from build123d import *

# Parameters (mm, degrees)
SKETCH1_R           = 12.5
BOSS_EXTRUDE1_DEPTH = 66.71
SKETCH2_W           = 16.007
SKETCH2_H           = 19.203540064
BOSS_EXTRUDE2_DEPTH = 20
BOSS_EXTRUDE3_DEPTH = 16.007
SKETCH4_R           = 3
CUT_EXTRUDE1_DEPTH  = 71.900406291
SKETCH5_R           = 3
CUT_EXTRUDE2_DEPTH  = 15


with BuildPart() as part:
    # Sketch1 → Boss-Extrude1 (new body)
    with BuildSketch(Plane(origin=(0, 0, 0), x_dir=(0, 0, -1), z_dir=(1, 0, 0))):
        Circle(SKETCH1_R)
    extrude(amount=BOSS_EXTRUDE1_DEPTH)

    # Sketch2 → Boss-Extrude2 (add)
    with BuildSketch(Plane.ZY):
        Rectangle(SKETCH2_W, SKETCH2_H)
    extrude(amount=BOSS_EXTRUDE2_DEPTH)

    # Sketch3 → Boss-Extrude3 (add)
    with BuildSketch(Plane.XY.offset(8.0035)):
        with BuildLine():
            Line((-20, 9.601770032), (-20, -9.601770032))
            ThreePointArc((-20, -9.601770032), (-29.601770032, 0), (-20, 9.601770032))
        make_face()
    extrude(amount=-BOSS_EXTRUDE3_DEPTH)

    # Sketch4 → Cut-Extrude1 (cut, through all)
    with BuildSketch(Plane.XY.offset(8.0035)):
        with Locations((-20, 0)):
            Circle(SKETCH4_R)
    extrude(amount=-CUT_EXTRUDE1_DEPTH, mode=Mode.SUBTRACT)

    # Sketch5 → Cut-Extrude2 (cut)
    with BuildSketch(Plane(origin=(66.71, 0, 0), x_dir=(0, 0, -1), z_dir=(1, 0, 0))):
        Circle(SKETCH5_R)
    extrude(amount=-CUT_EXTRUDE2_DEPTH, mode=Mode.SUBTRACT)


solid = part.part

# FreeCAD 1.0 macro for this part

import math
import FreeCAD as App
import Part
import Sketcher


def add_polygon(sketch, points):
    """Adds a closed chain of lines whose ends are joined by coincident constraints."""
    first, n = sketch.GeometryCount, len(points)
    for a, b in zip(points, points[1:] + points[:1]):
        sketch.addGeometry(Part.LineSegment(App.Vector(*a, 0), App.Vector(*b, 0)), False)
    for i in range(n):
        sketch.addConstraint(Sketcher.Constraint("Coincident", first + i, 2, first + (i + 1) % n, 1))

doc = App.newDocument("Part")
body = doc.addObject("PartDesign::Body", "Body")

sketch1 = body.newObject("Sketcher::SketchObject", "Sketch")
sketch1.AttachmentSupport = (doc.getObject("YZ_Plane"), [""])
sketch1.MapMode = "FlatFace"
sketch1.addGeometry(Part.Circle(App.Vector(0, 0, 0), App.Vector(0, 0, 1), 12), False)
sketch1.addConstraint([
    Sketcher.Constraint("Coincident", 0, 3, -1, 1),
    Sketcher.Constraint("Diameter", 0, 25.0),
])
pad1 = body.newObject("PartDesign::Pad", "Pad")
pad1.Profile = sketch1
pad1.Length = 66.71

sketch2 = body.newObject("Sketcher::SketchObject", "Sketch001")
sketch2.AttachmentSupport = (doc.getObject("YZ_Plane"), [""])
sketch2.MapMode = "FlatFace"
add_polygon(sketch2, [(10, -8), (-10, -8), (-10, 8), (10, 8)])
sketch2.addConstraint([
    Sketcher.Constraint("Horizontal", 0),
    Sketcher.Constraint("Vertical", 1),
    Sketcher.Constraint("Horizontal", 2),
    Sketcher.Constraint("Vertical", 3),
    Sketcher.Constraint("Symmetric", 0, 2, 2, 2, -1, 1),
    Sketcher.Constraint("DistanceY", 1, 1, 1, 2, 16.007),
    Sketcher.Constraint("DistanceX", 0, 2, 0, 1, 19.20354),
])
pad2 = body.newObject("PartDesign::Pad", "Pad001")
pad2.Profile = sketch2
pad2.Length = 20
pad2.Reversed = True

sketch3 = body.newObject("Sketcher::SketchObject", "Sketch002")
sketch3.AttachmentSupport = (doc.getObject("XY_Plane"), [""])
sketch3.MapMode = "FlatFace"
sketch3.AttachmentOffset = App.Placement(App.Vector(0, 0, 8.0035), App.Rotation())
sketch3.addGeometry([
    Part.LineSegment(App.Vector(-20, -10, 0), App.Vector(-20, 10, 0)),
    Part.ArcOfCircle(Part.Circle(App.Vector(-20, 0, 0), App.Vector(0, 0, 1), 10), math.radians(90), math.radians(270)),
], False)
sketch3.addConstraint([
    Sketcher.Constraint("Coincident", 0, 1, 1, 2),
    Sketcher.Constraint("Coincident", 1, 1, 0, 2),
    Sketcher.Constraint("Vertical", 0),
    Sketcher.Constraint("PointOnObject", 1, 3, -1),
    Sketcher.Constraint("Vertical", 1, 3, 0, 1),
    Sketcher.Constraint("DistanceX", 1, 3, -1, 1, 20.0),
    Sketcher.Constraint("Radius", 1, 9.60177),
])
pad3 = body.newObject("PartDesign::Pad", "Pad002")
pad3.Profile = sketch3
pad3.Length = 16.007
pad3.Reversed = True

sketch4 = body.newObject("Sketcher::SketchObject", "Sketch003")
sketch4.AttachmentSupport = (doc.getObject("XY_Plane"), [""])
sketch4.MapMode = "FlatFace"
sketch4.AttachmentOffset = App.Placement(App.Vector(0, 0, 8.0035), App.Rotation())
sketch4.addGeometry(Part.Circle(App.Vector(-20, 0, 0), App.Vector(0, 0, 1), 3), False)
sketch4.addConstraint([
    Sketcher.Constraint("PointOnObject", 0, 3, -1),
    Sketcher.Constraint("Diameter", 0, 6.0),
    Sketcher.Constraint("DistanceX", 0, 3, -1, 1, 20.0),
])
pocket1 = body.newObject("PartDesign::Pocket", "Pocket")
pocket1.Profile = sketch4
pocket1.Type = "ThroughAll"

sketch5 = body.newObject("Sketcher::SketchObject", "Sketch004")
sketch5.AttachmentSupport = (doc.getObject("YZ_Plane"), [""])
sketch5.MapMode = "FlatFace"
sketch5.AttachmentOffset = App.Placement(App.Vector(0, 0, 66.71), App.Rotation())
sketch5.addGeometry(Part.Circle(App.Vector(0, 0, 0), App.Vector(0, 0, 1), 3), False)
sketch5.addConstraint([
    Sketcher.Constraint("Coincident", 0, 3, -1, 1),
    Sketcher.Constraint("Diameter", 0, 6.0),
])
pocket2 = body.newObject("PartDesign::Pocket", "Pocket001")
pocket2.Profile = sketch5
pocket2.Length = 15

doc.recompute()
